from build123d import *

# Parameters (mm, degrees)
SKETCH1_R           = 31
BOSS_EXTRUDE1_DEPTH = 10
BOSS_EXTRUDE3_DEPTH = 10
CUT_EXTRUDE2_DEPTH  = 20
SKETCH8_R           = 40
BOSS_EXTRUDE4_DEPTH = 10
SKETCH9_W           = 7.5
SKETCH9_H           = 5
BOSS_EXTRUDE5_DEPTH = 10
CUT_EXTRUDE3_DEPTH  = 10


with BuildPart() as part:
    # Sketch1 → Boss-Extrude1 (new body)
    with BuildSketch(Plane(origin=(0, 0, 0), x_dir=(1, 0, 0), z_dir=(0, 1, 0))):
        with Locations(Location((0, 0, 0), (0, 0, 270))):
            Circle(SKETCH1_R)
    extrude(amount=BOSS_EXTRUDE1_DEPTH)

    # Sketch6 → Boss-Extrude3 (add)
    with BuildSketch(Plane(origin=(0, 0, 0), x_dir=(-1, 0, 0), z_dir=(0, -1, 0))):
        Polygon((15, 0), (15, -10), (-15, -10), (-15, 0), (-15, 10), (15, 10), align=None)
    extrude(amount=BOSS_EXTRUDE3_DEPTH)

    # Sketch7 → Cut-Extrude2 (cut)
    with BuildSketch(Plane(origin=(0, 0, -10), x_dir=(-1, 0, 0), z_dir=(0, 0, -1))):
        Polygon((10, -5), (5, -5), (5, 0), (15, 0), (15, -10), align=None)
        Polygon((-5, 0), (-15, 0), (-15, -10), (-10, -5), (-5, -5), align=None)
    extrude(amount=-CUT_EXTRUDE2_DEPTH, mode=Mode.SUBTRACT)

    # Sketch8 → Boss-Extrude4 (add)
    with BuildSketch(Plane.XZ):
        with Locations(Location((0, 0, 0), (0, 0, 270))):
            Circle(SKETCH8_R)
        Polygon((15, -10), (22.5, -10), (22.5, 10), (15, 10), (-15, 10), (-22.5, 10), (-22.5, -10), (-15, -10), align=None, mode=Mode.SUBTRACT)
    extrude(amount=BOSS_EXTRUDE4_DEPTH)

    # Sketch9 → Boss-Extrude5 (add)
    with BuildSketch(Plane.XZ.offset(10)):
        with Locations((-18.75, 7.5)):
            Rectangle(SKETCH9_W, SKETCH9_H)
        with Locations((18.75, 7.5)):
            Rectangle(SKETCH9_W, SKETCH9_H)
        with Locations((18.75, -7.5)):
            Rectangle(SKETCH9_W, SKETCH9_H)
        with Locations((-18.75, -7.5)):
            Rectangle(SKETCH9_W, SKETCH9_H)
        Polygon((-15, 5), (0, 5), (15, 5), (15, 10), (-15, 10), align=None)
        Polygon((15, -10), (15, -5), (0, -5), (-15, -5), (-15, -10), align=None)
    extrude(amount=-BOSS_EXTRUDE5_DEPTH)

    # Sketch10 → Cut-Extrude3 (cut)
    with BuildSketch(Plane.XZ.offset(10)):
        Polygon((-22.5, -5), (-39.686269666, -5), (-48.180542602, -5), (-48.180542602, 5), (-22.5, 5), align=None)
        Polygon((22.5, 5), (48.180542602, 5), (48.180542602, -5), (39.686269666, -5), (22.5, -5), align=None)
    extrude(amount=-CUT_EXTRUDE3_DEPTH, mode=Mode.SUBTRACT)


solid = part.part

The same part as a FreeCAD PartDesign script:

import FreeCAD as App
import Part
import Sketcher
Q = App.Units.Quantity


def add_polygon(sketch, points):
    """Adds a closed chain of lines whose ends are joined by coincident constraints."""
    first, n = sketch.GeometryCount, len(points)
    for a, b in zip(points, points[1:] + points[:1]):
        sketch.addGeometry(Part.LineSegment(App.Vector(*a, 0), App.Vector(*b, 0)), False)
    for i in range(n):
        sketch.addConstraint(Sketcher.Constraint("Coincident", first + i, 2, first + (i + 1) % n, 1))

doc = App.newDocument("Part")
body = doc.addObject("PartDesign::Body", "Body")

sketch1 = body.newObject("Sketcher::SketchObject", "Sketch")
sketch1.AttachmentSupport = (doc.getObject("XZ_Plane"), [""])
sketch1.MapMode = "FlatFace"
sketch1.addGeometry(Part.Circle(App.Vector(0, 0, 0), App.Vector(0, 0, 1), 31), False)
sketch1.addConstraint([
    Sketcher.Constraint("Coincident", 0, 3, -1, 1),
    Sketcher.Constraint("Diameter", 0, Q("62 mm")),
])
pad1 = body.newObject("PartDesign::Pad", "Pad")
pad1.Profile = sketch1
pad1.Length = 10
pad1.Reversed = True

sketch2 = body.newObject("Sketcher::SketchObject", "Sketch001")
sketch2.AttachmentSupport = (doc.getObject("XZ_Plane"), [""])
sketch2.MapMode = "FlatFace"
add_polygon(sketch2, [(-15, 10), (-15, -10), (15, -10), (15, 10)])
sketch2.addConstraint([
    Sketcher.Constraint("Vertical", 0),
    Sketcher.Constraint("Horizontal", 1),
    Sketcher.Constraint("Vertical", 2),
    Sketcher.Constraint("Horizontal", 3),
    Sketcher.Constraint("Symmetric", 0, 2, 2, 2, -1, 1),
    Sketcher.Constraint("DistanceX", 1, 1, 1, 2, Q("30 mm")),
    Sketcher.Constraint("DistanceY", 0, 2, 0, 1, Q("20 mm")),
])
pad2 = body.newObject("PartDesign::Pad", "Pad001")
pad2.Profile = sketch2
pad2.Length = 10

sketch3 = body.newObject("Sketcher::SketchObject", "Sketch002")
sketch3.AttachmentSupport = (doc.getObject("XY_Plane"), [""])
sketch3.MapMode = "FlatFace"
sketch3.AttachmentOffset = App.Placement(App.Vector(0, 0, -10), App.Rotation())
add_polygon(sketch3, [(-5, -5), (-10, -5), (-15, -10), (-15, 0), (-5, 0)])
add_polygon(sketch3, [(5, 0), (15, 0), (15, -10), (10, -5), (5, -5)])
sketch3.addConstraint([
    Sketcher.Constraint("Horizontal", 0),
    Sketcher.Constraint("Vertical", 2),
    Sketcher.Constraint("Horizontal", 3),
    Sketcher.Constraint("Vertical", 4),
    Sketcher.Constraint("Horizontal", 5),
    Sketcher.Constraint("Vertical", 6),
    Sketcher.Constraint("Horizontal", 8),
    Sketcher.Constraint("Vertical", 9),
    Sketcher.Constraint("Symmetric", 2, 2, 5, 2, -1, 1),
    Sketcher.Constraint("Symmetric", 0, 2, 7, 2, -2),
    Sketcher.Constraint("Symmetric", 3, 2, 9, 2, -2),
    Sketcher.Constraint("Perpendicular", 1, 7),
    Sketcher.Constraint("Horizontal", 1, 2, 6, 2),
    Sketcher.Constraint("Equal", 5, 2),
    Sketcher.Constraint("DistanceX", 0, 2, 0, 1, Q("5 mm")),
    Sketcher.Constraint("DistanceX", 3, 1, 3, 2, Q("10 mm")),
    Sketcher.Constraint("DistanceX", 0, 2, -1, 1, Q("10 mm")),
])
pocket1 = body.newObject("PartDesign::Pocket", "Pocket")
pocket1.Profile = sketch3
pocket1.Length = 20
pocket1.Reversed = True

sketch4 = body.newObject("Sketcher::SketchObject", "Sketch003")
sketch4.AttachmentSupport = (doc.getObject("XZ_Plane"), [""])
sketch4.MapMode = "FlatFace"
sketch4.addGeometry(Part.Circle(App.Vector(0, 0, 0), App.Vector(0, 0, 1), 40), False)
add_polygon(sketch4, [(22, -10), (-22, -10), (-22, 10), (22, 10)])
sketch4.addConstraint([
    Sketcher.Constraint("Horizontal", 1),
    Sketcher.Constraint("Vertical", 2),
    Sketcher.Constraint("Horizontal", 3),
    Sketcher.Constraint("Vertical", 4),
    Sketcher.Constraint("Coincident", 0, 3, -1, 1),
    Sketcher.Constraint("Symmetric", 1, 2, 3, 2, -1, 1),
    Sketcher.Constraint("Diameter", 0, Q("80 mm")),
    Sketcher.Constraint("DistanceX", 1, 2, 1, 1, Q("45 mm")),
    Sketcher.Constraint("DistanceY", 2, 1, 2, 2, Q("20 mm")),
])
pad3 = body.newObject("PartDesign::Pad", "Pad002")
pad3.Profile = sketch4
pad3.Length = 10

sketch5 = body.newObject("Sketcher::SketchObject", "Sketch004")
sketch5.AttachmentSupport = (doc.getObject("XZ_Plane"), [""])
sketch5.MapMode = "FlatFace"
sketch5.AttachmentOffset = App.Placement(App.Vector(0, 0, 10), App.Rotation())
add_polygon(sketch5, [(-22, 10), (-22, 5), (22, 5), (22, 10)])
add_polygon(sketch5, [(22, -10), (22, -5), (-22, -5), (-22, -10)])
sketch5.addConstraint([
    Sketcher.Constraint("Vertical", 0),
    Sketcher.Constraint("Horizontal", 1),
    Sketcher.Constraint("Vertical", 2),
    Sketcher.Constraint("Horizontal", 3),
    Sketcher.Constraint("Vertical", 4),
    Sketcher.Constraint("Horizontal", 5),
    Sketcher.Constraint("Vertical", 6),
    Sketcher.Constraint("Horizontal", 7),
    Sketcher.Constraint("Symmetric", 0, 2, 4, 2, -1, 1),
    Sketcher.Constraint("Symmetric", 2, 2, 6, 2, -1, 1),
    Sketcher.Constraint("Vertical", 2, 2, 4, 2),
    Sketcher.Constraint("DistanceX", 1, 1, 1, 2, Q("45 mm")),
    Sketcher.Constraint("DistanceY", 0, 2, 0, 1, Q("5 mm")),
    Sketcher.Constraint("DistanceY", -1, 1, 0, 2, Q("5 mm")),
])
pad4 = body.newObject("PartDesign::Pad", "Pad003")
pad4.Profile = sketch5
pad4.Length = 10
pad4.Reversed = True

sketch6 = body.newObject("Sketcher::SketchObject", "Sketch005")
sketch6.AttachmentSupport = (doc.getObject("XZ_Plane"), [""])
sketch6.MapMode = "FlatFace"
sketch6.AttachmentOffset = App.Placement(App.Vector(0, 0, 10), App.Rotation())
add_polygon(sketch6, [(-48, -5), (-22, -5), (-22, 5), (-48, 5)])
add_polygon(sketch6, [(48, 5), (22, 5), (22, -5), (48, -5)])
sketch6.addConstraint([
    Sketcher.Constraint("Horizontal", 0),
    Sketcher.Constraint("Vertical", 1),
    Sketcher.Constraint("Horizontal", 2),
    Sketcher.Constraint("Vertical", 3),
    Sketcher.Constraint("Horizontal", 4),
    Sketcher.Constraint("Vertical", 5),
    Sketcher.Constraint("Horizontal", 6),
    Sketcher.Constraint("Vertical", 7),
    Sketcher.Constraint("Symmetric", 0, 2, 4, 2, -1, 1),
    Sketcher.Constraint("Symmetric", 2, 2, 6, 2, -1, 1),
    Sketcher.Constraint("Horizontal", 2, 2, 4, 2),
    Sketcher.Constraint("DistanceY", 1, 1, 1, 2, Q("10 mm")),
    Sketcher.Constraint("DistanceX", 1, 2, 4, 2, Q("45 mm")),
    Sketcher.Constraint("DistanceX", 0, 1, 0, 2, Q("25.680543 mm")),
])
pocket2 = body.newObject("PartDesign::Pocket", "Pocket001")
pocket2.Profile = sketch6
pocket2.Length = 10

doc.recompute()
